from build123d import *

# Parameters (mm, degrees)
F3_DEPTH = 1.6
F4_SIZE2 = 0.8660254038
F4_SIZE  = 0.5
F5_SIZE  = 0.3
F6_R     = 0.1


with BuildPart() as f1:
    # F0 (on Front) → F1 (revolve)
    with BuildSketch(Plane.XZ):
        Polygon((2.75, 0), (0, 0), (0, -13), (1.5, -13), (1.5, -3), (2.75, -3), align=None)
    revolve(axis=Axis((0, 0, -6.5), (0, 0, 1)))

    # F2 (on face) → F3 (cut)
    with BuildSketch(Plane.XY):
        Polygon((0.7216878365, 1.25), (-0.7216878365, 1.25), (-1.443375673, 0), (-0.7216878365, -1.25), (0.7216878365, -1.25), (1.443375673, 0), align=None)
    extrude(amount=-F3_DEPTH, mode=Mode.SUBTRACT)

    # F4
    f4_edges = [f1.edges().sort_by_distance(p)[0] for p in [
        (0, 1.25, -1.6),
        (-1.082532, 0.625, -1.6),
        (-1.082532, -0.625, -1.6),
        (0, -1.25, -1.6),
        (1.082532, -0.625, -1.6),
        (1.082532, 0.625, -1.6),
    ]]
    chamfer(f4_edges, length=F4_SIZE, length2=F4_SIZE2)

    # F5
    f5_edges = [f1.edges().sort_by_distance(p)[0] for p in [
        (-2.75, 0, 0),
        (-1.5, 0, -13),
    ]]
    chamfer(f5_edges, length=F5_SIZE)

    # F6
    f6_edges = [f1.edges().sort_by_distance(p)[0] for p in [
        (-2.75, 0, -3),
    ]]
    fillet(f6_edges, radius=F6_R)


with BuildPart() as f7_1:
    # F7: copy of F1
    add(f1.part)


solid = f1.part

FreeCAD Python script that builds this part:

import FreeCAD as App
import Part
import Sketcher
Q = App.Units.Quantity


def edges_at(feature, points):
    """Names of the edges that pass closest to the given points."""
    edges = feature.Shape.Edges
    near = lambda p: min(range(len(edges)), key=lambda i: edges[i].distToShape(Part.Vertex(*p))[0])
    return sorted({f"Edge{near(p) + 1}" for p in points})

doc = App.newDocument("Part")
params = doc.addObject("Spreadsheet::Sheet", "Params")
for row, (alias, value) in enumerate([
    ("sketch1_height", "13 mm"),
    ("sketch1_height2", "10 mm"),
    ("sketch1_width", "1.5 mm"),
    ("sketch1_width2", "2.75 mm"),
    ("revolution_angle", "360 deg"),
    ("pocket1_length", "1.6 mm"),
    ("chamfer_size", "0.5 mm"),
    ("chamfer_size2", "0.866025 mm"),
    ("chamfer2_size", "0.3 mm"),
    ("fillet_radius", "0.1 mm"),
], start=1):
    params.set(f"A{row}", alias)
    params.set(f"B{row}", "=" + value)
    params.setAlias(f"B{row}", alias)

body = doc.addObject("PartDesign::Body", "Body")

# Sketch on XZ plane
sketch1 = doc.addObject("Sketcher::SketchObject", "Sketch")
body.addObject(sketch1)
sketch1.AttachmentSupport = (doc.XZ_Plane, [""])
sketch1.MapMode = "FlatFace"
sketch1.addGeometry(Part.LineSegment(App.Vector(2.75, 0, 0), App.Vector(0, 0, 0)), False)
sketch1.addGeometry(Part.LineSegment(App.Vector(0, 0, 0), App.Vector(0, -13, 0)), False)
sketch1.addGeometry(Part.LineSegment(App.Vector(0, -13, 0), App.Vector(1.5, -13, 0)), False)
sketch1.addGeometry(Part.LineSegment(App.Vector(1.5, -13, 0), App.Vector(1.5, -3, 0)), False)
sketch1.addGeometry(Part.LineSegment(App.Vector(1.5, -3, 0), App.Vector(2.75, -3, 0)), False)
sketch1.addGeometry(Part.LineSegment(App.Vector(2.75, -3, 0), App.Vector(2.75, 0, 0)), False)
sketch1.addConstraint(Sketcher.Constraint("Coincident", 0, 2, 1, 1))
sketch1.addConstraint(Sketcher.Constraint("Coincident", 1, 2, 2, 1))
sketch1.addConstraint(Sketcher.Constraint("Coincident", 2, 2, 3, 1))
sketch1.addConstraint(Sketcher.Constraint("Coincident", 3, 2, 4, 1))
sketch1.addConstraint(Sketcher.Constraint("Coincident", 4, 2, 5, 1))
sketch1.addConstraint(Sketcher.Constraint("Coincident", 5, 2, 0, 1))
sketch1.addConstraint(Sketcher.Constraint("Horizontal", 0))
sketch1.addConstraint(Sketcher.Constraint("Vertical", 1))
sketch1.addConstraint(Sketcher.Constraint("Horizontal", 2))
sketch1.addConstraint(Sketcher.Constraint("Vertical", 3))
sketch1.addConstraint(Sketcher.Constraint("Horizontal", 4))
sketch1.addConstraint(Sketcher.Constraint("Vertical", 5))
sketch1.addConstraint(Sketcher.Constraint("Coincident", 0, 2, -1, 1))
sketch1.addConstraint(Sketcher.Constraint("DistanceY", 1, 2, 1, 1, Q("13 mm")))
sketch1.addConstraint(Sketcher.Constraint("DistanceY", 3, 1, 3, 2, Q("10 mm")))
sketch1.addConstraint(Sketcher.Constraint("DistanceX", 2, 1, 2, 2, Q("1.5 mm")))
sketch1.addConstraint(Sketcher.Constraint("DistanceX", 0, 2, 0, 1, Q("2.75 mm")))
sketch1.setExpression("Constraints[13]", "Params.sketch1_height")
sketch1.setExpression("Constraints[14]", "Params.sketch1_height2")
sketch1.setExpression("Constraints[15]", "Params.sketch1_width")
sketch1.setExpression("Constraints[16]", "Params.sketch1_width2")
revolution = doc.addObject("PartDesign::Revolution", "Revolution")
body.addObject(revolution)
revolution.Profile = sketch1
revolution.ReferenceAxis = (sketch1, ["V_Axis"])
revolution.setExpression("Angle", "Params.revolution_angle")

# Sketch on XY plane
sketch2 = doc.addObject("Sketcher::SketchObject", "Sketch001")
body.addObject(sketch2)
sketch2.AttachmentSupport = (doc.XY_Plane, [""])
sketch2.MapMode = "FlatFace"
sketch2.addGeometry(Part.LineSegment(App.Vector(0.721688, 1.25, 0), App.Vector(-0.721688, 1.25, 0)), False)
sketch2.addGeometry(Part.LineSegment(App.Vector(-0.721688, 1.25, 0), App.Vector(-1.443376, 0, 0)), False)
sketch2.addGeometry(Part.LineSegment(App.Vector(-1.443376, 0, 0), App.Vector(-0.721688, -1.25, 0)), False)
sketch2.addGeometry(Part.LineSegment(App.Vector(-0.721688, -1.25, 0), App.Vector(0.721688, -1.25, 0)), False)
sketch2.addGeometry(Part.LineSegment(App.Vector(0.721688, -1.25, 0), App.Vector(1.443376, 0, 0)), False)
sketch2.addGeometry(Part.LineSegment(App.Vector(1.443376, 0, 0), App.Vector(0.721688, 1.25, 0)), False)
sketch2.addConstraint(Sketcher.Constraint("Coincident", 0, 2, 1, 1))
sketch2.addConstraint(Sketcher.Constraint("Coincident", 1, 2, 2, 1))
sketch2.addConstraint(Sketcher.Constraint("Coincident", 2, 2, 3, 1))
sketch2.addConstraint(Sketcher.Constraint("Coincident", 3, 2, 4, 1))
sketch2.addConstraint(Sketcher.Constraint("Coincident", 4, 2, 5, 1))
sketch2.addConstraint(Sketcher.Constraint("Coincident", 5, 2, 0, 1))
sketch2.addConstraint(Sketcher.Constraint("Horizontal", 0))
sketch2.addConstraint(Sketcher.Constraint("Horizontal", 3))
sketch2.addConstraint(Sketcher.Constraint("Symmetric", 0, 2, 3, 2, -1, 1))
sketch2.addConstraint(Sketcher.Constraint("Symmetric", 1, 2, 4, 2, -1, 1))
sketch2.addConstraint(Sketcher.Constraint("PointOnObject", 1, 2, -1))
sketch2.addConstraint(Sketcher.Constraint("Parallel", 2, 5))
sketch2.addConstraint(Sketcher.Constraint("Vertical", 0, 2, 2, 2))
sketch2.addConstraint(Sketcher.Constraint("Angle", 1, Q("-120 deg")))
sketch2.addConstraint(Sketcher.Constraint("DistanceY", 2, 2, 0, 2, Q("2.5 mm")))
sketch2.addConstraint(Sketcher.Constraint("DistanceX", 0, 2, 0, 1, Q("1.443376 mm")))
pocket1 = doc.addObject("PartDesign::Pocket", "Pocket")
body.addObject(pocket1)
pocket1.Profile = sketch2
pocket1.setExpression("Length", "Params.pocket1_length")
doc.recompute()

chamfer = doc.addObject("PartDesign::Chamfer", "Chamfer")
body.addObject(chamfer)
chamfer.Base = (pocket1, edges_at(pocket1, [
    (0, 1.25, -1.6),
    (-1.083, 0.625, -1.6),
    (-1.083, -0.625, -1.6),
    (0, -1.25, -1.6),
    (1.083, -0.625, -1.6),
    (1.083, 0.625, -1.6),
]))
chamfer.ChamferType = "Two distances"
chamfer.setExpression("Size", "Params.chamfer_size")
chamfer.setExpression("Size2", "Params.chamfer_size2")
doc.recompute()

chamfer2 = doc.addObject("PartDesign::Chamfer", "Chamfer001")
body.addObject(chamfer2)
chamfer2.Base = (chamfer, edges_at(chamfer, [(-2.75, 0, 0), (-1.5, 0, -13)]))
chamfer2.setExpression("Size", "Params.chamfer2_size")
doc.recompute()

fillet = doc.addObject("PartDesign::Fillet", "Fillet")
body.addObject(fillet)
fillet.Base = (chamfer2, edges_at(chamfer2, [(-2.75, 0, -3)]))
fillet.setExpression("Radius", "Params.fillet_radius")
body2 = doc.addObject("PartDesign::Body", "Body001")
doc.recompute()

body2.BaseFeature = body
doc.recompute()
body.Visibility = False

doc.recompute()
